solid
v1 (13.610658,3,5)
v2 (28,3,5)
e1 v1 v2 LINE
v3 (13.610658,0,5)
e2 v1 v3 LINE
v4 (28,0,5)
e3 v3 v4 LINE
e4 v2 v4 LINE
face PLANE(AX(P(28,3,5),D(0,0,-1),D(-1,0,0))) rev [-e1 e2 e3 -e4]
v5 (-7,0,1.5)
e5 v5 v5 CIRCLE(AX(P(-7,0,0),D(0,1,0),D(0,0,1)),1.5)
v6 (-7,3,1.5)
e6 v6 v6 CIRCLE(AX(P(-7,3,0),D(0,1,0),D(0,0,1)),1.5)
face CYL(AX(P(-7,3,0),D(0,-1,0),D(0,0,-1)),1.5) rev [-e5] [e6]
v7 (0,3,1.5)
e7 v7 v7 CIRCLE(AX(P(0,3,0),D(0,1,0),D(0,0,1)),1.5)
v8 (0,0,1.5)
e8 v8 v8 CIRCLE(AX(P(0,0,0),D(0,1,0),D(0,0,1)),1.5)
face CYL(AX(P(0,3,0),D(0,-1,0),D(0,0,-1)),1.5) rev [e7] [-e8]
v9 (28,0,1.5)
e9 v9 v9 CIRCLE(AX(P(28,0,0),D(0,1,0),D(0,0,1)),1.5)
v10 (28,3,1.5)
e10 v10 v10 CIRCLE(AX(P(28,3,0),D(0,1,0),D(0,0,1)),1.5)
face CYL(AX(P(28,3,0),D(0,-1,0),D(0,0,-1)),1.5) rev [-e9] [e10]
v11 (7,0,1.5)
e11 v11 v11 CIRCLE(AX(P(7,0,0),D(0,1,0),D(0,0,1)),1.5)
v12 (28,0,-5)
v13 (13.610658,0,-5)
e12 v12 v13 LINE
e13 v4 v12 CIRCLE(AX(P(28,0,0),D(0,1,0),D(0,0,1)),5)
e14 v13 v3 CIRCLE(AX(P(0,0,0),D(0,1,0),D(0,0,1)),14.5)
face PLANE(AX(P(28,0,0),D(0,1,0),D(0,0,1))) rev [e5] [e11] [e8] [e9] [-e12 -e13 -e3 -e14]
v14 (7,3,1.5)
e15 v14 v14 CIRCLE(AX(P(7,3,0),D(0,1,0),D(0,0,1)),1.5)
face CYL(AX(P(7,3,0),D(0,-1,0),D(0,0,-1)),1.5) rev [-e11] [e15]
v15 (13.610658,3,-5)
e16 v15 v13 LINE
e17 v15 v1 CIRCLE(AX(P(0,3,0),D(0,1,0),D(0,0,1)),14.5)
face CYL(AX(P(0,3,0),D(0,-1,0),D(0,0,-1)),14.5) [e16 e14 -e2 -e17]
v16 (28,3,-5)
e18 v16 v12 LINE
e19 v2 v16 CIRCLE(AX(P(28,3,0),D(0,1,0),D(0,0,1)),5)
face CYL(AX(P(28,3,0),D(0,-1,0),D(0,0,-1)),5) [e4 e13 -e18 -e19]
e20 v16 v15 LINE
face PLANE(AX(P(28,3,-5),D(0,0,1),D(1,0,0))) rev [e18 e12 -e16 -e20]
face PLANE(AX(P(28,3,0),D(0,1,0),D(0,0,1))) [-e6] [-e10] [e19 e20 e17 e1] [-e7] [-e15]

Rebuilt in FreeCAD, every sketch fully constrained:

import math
import FreeCAD as App
import Part
import Sketcher

V = App.Vector
Q = App.Units.Quantity

doc = App.newDocument("Part")
body = doc.addObject("PartDesign::Body", "Body")

# Sketch on XZ plane
sketch1 = doc.addObject("Sketcher::SketchObject", "Sketch")
body.addObject(sketch1)
sketch1.AttachmentSupport = (doc.XZ_Plane, [""])
sketch1.MapMode = "FlatFace"
sketch1.addGeometry([
    Part.LineSegment(V(28, -5, 0), V(13.6, -5, 0)),  # 0
    Part.ArcOfCircle(Part.Circle(V(0, 0, 0), V(0, 0, 1), 14.5), math.radians(20), math.radians(340)),  # 1
    Part.LineSegment(V(13.6, 5, 0), V(28, 5, 0)),  # 2
    Part.ArcOfCircle(Part.Circle(V(28, 0, 0), V(0, 0, 1), 5), math.radians(-90), math.radians(90)),  # 3
    Part.Circle(V(-7, 0, 0), V(0, 0, 1), 1.5),  # 4
    Part.Circle(V(0, 0, 0), V(0, 0, 1), 1.5),  # 5
    Part.Circle(V(7, 0, 0), V(0, 0, 1), 1.5),  # 6
    Part.Circle(V(28, 0, 0), V(0, 0, 1), 1.5),  # 7
], False)
sketch1.addConstraint([
    Sketcher.Constraint("Coincident", 0, 2, 1, 2),
    Sketcher.Constraint("Coincident", 1, 1, 2, 1),
    Sketcher.Constraint("Tangent", 2, 2, 3, 2),
    Sketcher.Constraint("Tangent", 3, 1, 0, 1),
    Sketcher.Constraint("Horizontal", 0),
    Sketcher.Constraint("Horizontal", 2),
    Sketcher.Constraint("Coincident", 1, 3, -1, 1),
    Sketcher.Constraint("Coincident", 5, 3, -1, 1),
    Sketcher.Constraint("Coincident", 7, 3, 3, 3),
    Sketcher.Constraint("Equal", 4, 5),
    Sketcher.Constraint("Equal", 5, 6),
    Sketcher.Constraint("Equal", 6, 7),
    Sketcher.Constraint("Symmetric", 4, 3, 6, 3, -1, 1),
    Sketcher.Constraint("PointOnObject", 3, 3, -1),
    Sketcher.Constraint("PointOnObject", 4, 3, -1),
    Sketcher.Constraint("Diameter", 4, Q("3 mm")),
    Sketcher.Constraint("Radius", 3, Q("5 mm")),
    Sketcher.Constraint("Radius", 1, Q("14.5 mm")),
    Sketcher.Constraint("DistanceX", -1, 1, 3, 3, Q("28 mm")),
    Sketcher.Constraint("DistanceX", 4, 3, -1, 1, Q("7 mm")),
])
pad1 = doc.addObject("PartDesign::Pad", "Pad")
body.addObject(pad1)
pad1.Profile = sketch1
pad1.Length = 3
pad1.Reversed = True

doc.recompute()
